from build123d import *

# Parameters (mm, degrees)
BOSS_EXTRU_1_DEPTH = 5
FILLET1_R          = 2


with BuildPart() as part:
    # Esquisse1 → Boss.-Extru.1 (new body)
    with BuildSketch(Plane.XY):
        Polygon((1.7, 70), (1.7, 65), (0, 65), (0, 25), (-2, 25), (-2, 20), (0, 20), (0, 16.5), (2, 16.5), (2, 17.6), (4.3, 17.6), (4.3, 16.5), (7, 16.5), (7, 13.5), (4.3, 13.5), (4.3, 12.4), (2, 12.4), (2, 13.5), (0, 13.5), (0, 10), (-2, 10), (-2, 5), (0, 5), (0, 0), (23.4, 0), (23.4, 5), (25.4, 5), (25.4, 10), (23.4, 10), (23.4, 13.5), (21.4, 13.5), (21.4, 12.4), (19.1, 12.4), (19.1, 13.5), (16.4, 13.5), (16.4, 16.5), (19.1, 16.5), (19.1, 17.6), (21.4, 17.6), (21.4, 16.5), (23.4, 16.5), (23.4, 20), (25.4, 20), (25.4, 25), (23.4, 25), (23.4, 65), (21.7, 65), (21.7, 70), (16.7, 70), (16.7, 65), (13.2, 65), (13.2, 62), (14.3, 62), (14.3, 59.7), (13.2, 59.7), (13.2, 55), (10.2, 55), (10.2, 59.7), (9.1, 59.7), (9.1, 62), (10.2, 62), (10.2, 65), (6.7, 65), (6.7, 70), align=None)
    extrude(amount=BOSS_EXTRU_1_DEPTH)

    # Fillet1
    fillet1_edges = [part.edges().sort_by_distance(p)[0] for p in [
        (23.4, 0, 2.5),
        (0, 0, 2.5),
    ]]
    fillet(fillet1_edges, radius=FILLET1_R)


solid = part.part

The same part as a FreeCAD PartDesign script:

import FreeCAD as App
import Part
import Sketcher
from FreeCAD import Vector
Q = App.Units.Quantity


def edges_at(feature, points):
    """Names of the edges that pass closest to the given points."""
    edges = feature.Shape.Edges
    near = lambda p: min(range(len(edges)), key=lambda i: edges[i].distToShape(Part.Vertex(*p))[0])
    return sorted({f"Edge{near(p) + 1}" for p in points})


def add_polygon(sketch, points):
    """Adds a closed chain of lines whose ends are joined by coincident constraints."""
    first, n = sketch.GeometryCount, len(points)
    for a, b in zip(points, points[1:] + points[:1]):
        sketch.addGeometry(Part.LineSegment(App.Vector(*a, 0), App.Vector(*b, 0)), False)
    for i in range(n):
        sketch.addConstraint(Sketcher.Constraint("Coincident", first + i, 2, first + (i + 1) % n, 1))

doc = App.newDocument("Part")
params = doc.addObject("Spreadsheet::Sheet", "Params")
for row, (alias, value) in enumerate([
    ("sketch1_width", "2 mm"),
    ("sketch1_width2", "5 mm"),
    ("sketch1_width3", "3 mm"),
    ("sketch1_height", "40 mm"),
    ("sketch1_width4", "1.7 mm"),
    ("pad1_length", "5 mm"),
    ("fillet_radius", "2 mm"),
], start=1):
    params.set(f"A{row}", alias)
    params.set(f"B{row}", "=" + value)
    params.setAlias(f"B{row}", alias)

body = doc.addObject("PartDesign::Body", "Body")

# Sketch on XY plane
sketch1 = body.newObject("Sketcher::SketchObject", "Sketch")
sketch1.AttachmentSupport = (doc.getObject("XY_Plane"), [""])
sketch1.MapMode = "FlatFace"
add_polygon(sketch1, [(1.7, 70), (1.7, 65), (0, 65), (0, 25), (-2, 25), (-2, 20), (0, 20), (0, 16.5), (2, 16.5), (2, 17.6), (4.3, 17.6), (4.3, 16.5), (7, 16.5), (7, 13.5), (4.3, 13.5), (4.3, 12.4), (2, 12.4), (2, 13.5), (0, 13.5), (0, 10), (-2, 10), (-2, 5), (0, 5), (0, 0), (23.4, 0), (23.4, 5), (25.4, 5), (25.4, 10), (23.4, 10), (23.4, 13.5), (21.4, 13.5), (21.4, 12.4), (19.1, 12.4), (19.1, 13.5), (16.4, 13.5), (16.4, 16.5), (19.1, 16.5), (19.1, 17.6), (21.4, 17.6), (21.4, 16.5), (23.4, 16.5), (23.4, 20), (25.4, 20), (25.4, 25), (23.4, 25), (23.4, 65), (21.7, 65), (21.7, 70), (16.7, 70), (16.7, 65), (13.2, 65), (13.2, 62), (14.3, 62), (14.3, 59.7), (13.2, 59.7), (13.2, 55), (10.2, 55), (10.2, 59.7), (9.1, 59.7), (9.1, 62), (10.2, 62), (10.2, 65), (6.7, 65), (6.7, 70)])  # lines 0-63
sketch1.addConstraint(Sketcher.Constraint("Vertical", 0))
sketch1.addConstraint(Sketcher.Constraint("Horizontal", 1))
sketch1.addConstraint(Sketcher.Constraint("Vertical", 2))
sketch1.addConstraint(Sketcher.Constraint("Horizontal", 3))
sketch1.addConstraint(Sketcher.Constraint("Vertical", 4))
sketch1.addConstraint(Sketcher.Constraint("Horizontal", 5))
sketch1.addConstraint(Sketcher.Constraint("Vertical", 6))
sketch1.addConstraint(Sketcher.Constraint("Horizontal", 7))
sketch1.addConstraint(Sketcher.Constraint("Vertical", 8))
sketch1.addConstraint(Sketcher.Constraint("Horizontal", 9))
sketch1.addConstraint(Sketcher.Constraint("Vertical", 10))
sketch1.addConstraint(Sketcher.Constraint("Horizontal", 11))
sketch1.addConstraint(Sketcher.Constraint("Vertical", 12))
sketch1.addConstraint(Sketcher.Constraint("Horizontal", 13))
sketch1.addConstraint(Sketcher.Constraint("Vertical", 14))
sketch1.addConstraint(Sketcher.Constraint("Horizontal", 15))
sketch1.addConstraint(Sketcher.Constraint("Vertical", 16))
sketch1.addConstraint(Sketcher.Constraint("Horizontal", 17))
sketch1.addConstraint(Sketcher.Constraint("Vertical", 18))
sketch1.addConstraint(Sketcher.Constraint("Horizontal", 19))
sketch1.addConstraint(Sketcher.Constraint("Vertical", 20))
sketch1.addConstraint(Sketcher.Constraint("Horizontal", 21))
sketch1.addConstraint(Sketcher.Constraint("Vertical", 22))
sketch1.addConstraint(Sketcher.Constraint("Horizontal", 23))
sketch1.addConstraint(Sketcher.Constraint("Vertical", 24))
sketch1.addConstraint(Sketcher.Constraint("Horizontal", 25))
sketch1.addConstraint(Sketcher.Constraint("Vertical", 26))
sketch1.addConstraint(Sketcher.Constraint("Horizontal", 27))
sketch1.addConstraint(Sketcher.Constraint("Vertical", 28))
sketch1.addConstraint(Sketcher.Constraint("Horizontal", 29))
sketch1.addConstraint(Sketcher.Constraint("Vertical", 30))
sketch1.addConstraint(Sketcher.Constraint("Horizontal", 31))
sketch1.addConstraint(Sketcher.Constraint("Vertical", 32))
sketch1.addConstraint(Sketcher.Constraint("Horizontal", 33))
sketch1.addConstraint(Sketcher.Constraint("Vertical", 34))
sketch1.addConstraint(Sketcher.Constraint("Horizontal", 35))
sketch1.addConstraint(Sketcher.Constraint("Vertical", 36))
sketch1.addConstraint(Sketcher.Constraint("Horizontal", 37))
sketch1.addConstraint(Sketcher.Constraint("Vertical", 38))
sketch1.addConstraint(Sketcher.Constraint("Horizontal", 39))
sketch1.addConstraint(Sketcher.Constraint("Vertical", 40))
sketch1.addConstraint(Sketcher.Constraint("Horizontal", 41))
sketch1.addConstraint(Sketcher.Constraint("Vertical", 42))
sketch1.addConstraint(Sketcher.Constraint("Horizontal", 43))
sketch1.addConstraint(Sketcher.Constraint("Vertical", 44))
sketch1.addConstraint(Sketcher.Constraint("Horizontal", 45))
sketch1.addConstraint(Sketcher.Constraint("Vertical", 46))
sketch1.addConstraint(Sketcher.Constraint("Horizontal", 47))
sketch1.addConstraint(Sketcher.Constraint("Vertical", 48))
sketch1.addConstraint(Sketcher.Constraint("Horizontal", 49))
sketch1.addConstraint(Sketcher.Constraint("Vertical", 50))
sketch1.addConstraint(Sketcher.Constraint("Horizontal", 51))
sketch1.addConstraint(Sketcher.Constraint("Vertical", 52))
sketch1.addConstraint(Sketcher.Constraint("Horizontal", 53))
sketch1.addConstraint(Sketcher.Constraint("Vertical", 54))
sketch1.addConstraint(Sketcher.Constraint("Horizontal", 55))
sketch1.addConstraint(Sketcher.Constraint("Vertical", 56))
sketch1.addConstraint(Sketcher.Constraint("Horizontal", 57))
sketch1.addConstraint(Sketcher.Constraint("Vertical", 58))
sketch1.addConstraint(Sketcher.Constraint("Horizontal", 59))
sketch1.addConstraint(Sketcher.Constraint("Vertical", 60))
sketch1.addConstraint(Sketcher.Constraint("Horizontal", 61))
sketch1.addConstraint(Sketcher.Constraint("Vertical", 62))
sketch1.addConstraint(Sketcher.Constraint("Horizontal", 63))
sketch1.addConstraint(Sketcher.Constraint("Coincident", 22, 2, -1, 1))
sketch1.addConstraint(Sketcher.Constraint("PointOnObject", 1, 2, -2))
sketch1.addConstraint(Sketcher.Constraint("PointOnObject", 5, 2, -2))
sketch1.addConstraint(Sketcher.Constraint("PointOnObject", 17, 2, -2))
sketch1.addConstraint(Sketcher.Constraint("Horizontal", 7, 2, 10, 2))
sketch1.addConstraint(Sketcher.Constraint("Horizontal", 13, 2, 16, 2))
sketch1.addConstraint(Sketcher.Constraint("Horizontal", 21, 2, 24, 2))
sketch1.addConstraint(Sketcher.Constraint("Horizontal", 19, 2, 26, 2))
sketch1.addConstraint(Sketcher.Constraint("Horizontal", 17, 2, 28, 2))
sketch1.addConstraint(Sketcher.Constraint("Horizontal", 15, 2, 30, 2))
sketch1.addConstraint(Sketcher.Constraint("Horizontal", 29, 2, 32, 2))
sketch1.addConstraint(Sketcher.Constraint("Horizontal", 11, 2, 34, 2))
sketch1.addConstraint(Sketcher.Constraint("Horizontal", 9, 2, 36, 2))
sketch1.addConstraint(Sketcher.Constraint("Horizontal", 35, 2, 38, 2))
sketch1.addConstraint(Sketcher.Constraint("Horizontal", 5, 2, 40, 2))
sketch1.addConstraint(Sketcher.Constraint("Horizontal", 3, 2, 42, 2))
sketch1.addConstraint(Sketcher.Constraint("Horizontal", 1, 2, 44, 2))
sketch1.addConstraint(Sketcher.Constraint("Horizontal", 45, 2, 48, 2))
sketch1.addConstraint(Sketcher.Constraint("Horizontal", 53, 2, 56, 2))
sketch1.addConstraint(Sketcher.Constraint("Horizontal", 51, 2, 58, 2))
sketch1.addConstraint(Sketcher.Constraint("Horizontal", 49, 2, 60, 2))
sketch1.addConstraint(Sketcher.Constraint("Horizontal", 47, 2, 62, 2))
sketch1.addConstraint(Sketcher.Constraint("Vertical", 10, 2, 13, 2))
sketch1.addConstraint(Sketcher.Constraint("Vertical", 8, 2, 15, 2))
sketch1.addConstraint(Sketcher.Constraint("Vertical", 4, 2, 19, 2))
sketch1.addConstraint(Sketcher.Constraint("Vertical", 24, 2, 27, 2))
sketch1.addConstraint(Sketcher.Constraint("Vertical", 32, 2, 35, 2))
sketch1.addConstraint(Sketcher.Constraint("Vertical", 30, 2, 37, 2))
sketch1.addConstraint(Sketcher.Constraint("Vertical", 28, 2, 39, 2))
sketch1.addConstraint(Sketcher.Constraint("Vertical", 26, 2, 41, 2))
sketch1.addConstraint(Sketcher.Constraint("Vertical", 40, 2, 43, 2))
sketch1.addConstraint(Sketcher.Constraint("Vertical", 50, 2, 53, 2))
sketch1.addConstraint(Sketcher.Constraint("Vertical", 56, 2, 59, 2))
sketch1.addConstraint(Sketcher.Constraint("Equal", 5, 7))
sketch1.addConstraint(Sketcher.Constraint("Equal", 21, 25))
sketch1.addConstraint(Sketcher.Constraint("Equal", 27, 29))
sketch1.addConstraint(Sketcher.Constraint("Equal", 15, 31))
sketch1.addConstraint(Sketcher.Constraint("Equal", 13, 33))
sketch1.addConstraint(Sketcher.Constraint("Equal", 1, 45))
sketch1.addConstraint(Sketcher.Constraint("Equal", 53, 57))
sketch1.addConstraint(Sketcher.Constraint("Equal", 49, 61))
sketch1.addConstraint(Sketcher.Constraint("Equal", 47, 63))
sketch1.addConstraint(Sketcher.Constraint("Equal", 63, 0))
sketch1.addConstraint(Sketcher.Constraint("Equal", 0, 4))
sketch1.addConstraint(Sketcher.Constraint("Equal", 61, 6))
sketch1.addConstraint(Sketcher.Constraint("Equal", 59, 8))
sketch1.addConstraint(Sketcher.Constraint("Equal", 55, 12))
sketch1.addConstraint(Sketcher.Constraint("Equal", 10, 14))
sketch1.addConstraint(Sketcher.Constraint("Equal", 6, 18))
sketch1.addConstraint(Sketcher.Constraint("Equal", 4, 20))
sketch1.addConstraint(Sketcher.Constraint("Equal", 20, 22))
sketch1.addConstraint(Sketcher.Constraint("Equal", 34, 50))
sketch1.addConstraint(Sketcher.Constraint("Equal", 37, 52))
sketch1.addConstraint(Sketcher.Constraint("DistanceX", 3, 2, 3, 1, Q("2 mm")))
sketch1.addConstraint(Sketcher.Constraint("DistanceX", 47, 2, 47, 1, Q("5 mm")))
sketch1.addConstraint(Sketcher.Constraint("DistanceX", 55, 2, 55, 1, Q("3 mm")))
sketch1.addConstraint(Sketcher.Constraint("DistanceY", 2, 2, 2, 1, Q("40 mm")))
sketch1.addConstraint(Sketcher.Constraint("DistanceX", 1, 2, 1, 1, Q("1.7 mm")))
sketch1.addConstraint(Sketcher.Constraint("DistanceX", 9, 1, 9, 2, Q("2.3 mm")))
sketch1.addConstraint(Sketcher.Constraint("DistanceX", 11, 1, 11, 2, Q("2.7 mm")))
sketch1.addConstraint(Sketcher.Constraint("DistanceX", 23, 1, 23, 2, Q("23.4 mm")))
sketch1.addConstraint(Sketcher.Constraint("DistanceX", 51, 1, 51, 2, Q("1.1 mm")))
sketch1.addConstraint(Sketcher.Constraint("DistanceY", 54, 2, 54, 1, Q("4.7 mm")))
sketch1.setExpression("Constraints[181]", "Params.sketch1_width")
sketch1.setExpression("Constraints[182]", "Params.sketch1_width2")
sketch1.setExpression("Constraints[183]", "Params.sketch1_width3")
sketch1.setExpression("Constraints[184]", "Params.sketch1_height")
sketch1.setExpression("Constraints[185]", "Params.sketch1_width4")
pad1 = body.newObject("PartDesign::Pad", "Pad")
pad1.Profile = sketch1
pad1.setExpression("Length", "Params.pad1_length")
doc.recompute()

fillet = body.newObject("PartDesign::Fillet", "Fillet")
fillet.Base = (pad1, edges_at(pad1, [(23.4, 0, 2.5), (0, 0, 2.5)]))
fillet.setExpression("Radius", "Params.fillet_radius")

doc.recompute()
